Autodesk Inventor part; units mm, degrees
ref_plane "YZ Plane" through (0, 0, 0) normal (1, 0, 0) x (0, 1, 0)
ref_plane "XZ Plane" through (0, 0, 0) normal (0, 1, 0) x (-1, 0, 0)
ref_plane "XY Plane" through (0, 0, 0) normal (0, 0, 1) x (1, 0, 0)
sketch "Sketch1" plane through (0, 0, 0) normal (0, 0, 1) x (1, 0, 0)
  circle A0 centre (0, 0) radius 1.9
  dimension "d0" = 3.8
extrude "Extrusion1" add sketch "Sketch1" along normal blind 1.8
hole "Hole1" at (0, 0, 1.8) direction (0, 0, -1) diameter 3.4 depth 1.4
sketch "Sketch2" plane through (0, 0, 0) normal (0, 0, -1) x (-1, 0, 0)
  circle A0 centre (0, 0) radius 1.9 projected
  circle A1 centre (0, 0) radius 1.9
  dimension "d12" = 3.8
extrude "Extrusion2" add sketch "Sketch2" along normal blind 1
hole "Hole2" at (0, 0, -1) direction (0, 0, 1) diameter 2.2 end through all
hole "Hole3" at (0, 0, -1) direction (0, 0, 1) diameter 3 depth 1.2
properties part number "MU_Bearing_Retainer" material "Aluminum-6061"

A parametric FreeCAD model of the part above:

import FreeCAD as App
import Part
import Sketcher

doc = App.newDocument("Part")
body = doc.addObject("PartDesign::Body", "Body")

# Sketch on XY plane
sketch1 = body.newObject("Sketcher::SketchObject", "Sketch")
sketch1.AttachmentSupport = (doc.getObject("XY_Plane"), [""])
sketch1.MapMode = "FlatFace"
sketch1.addGeometry(Part.Circle(App.Vector(0, 0, 0), App.Vector(0, 0, 1), 1.9), False)
sketch1.addConstraint(Sketcher.Constraint("Coincident", 0, 3, -1, 1))
sketch1.addConstraint(Sketcher.Constraint("Diameter", 0, 3.8))
pad1 = body.newObject("PartDesign::Pad", "Pad")
pad1.Profile = sketch1
pad1.Length = 1.8

# Sketch on XY plane
sketch2 = body.newObject("Sketcher::SketchObject", "Sketch001")
sketch2.AttachmentSupport = (doc.getObject("XY_Plane"), [""])
sketch2.MapMode = "FlatFace"
sketch2.AttachmentOffset = App.Placement(App.Vector(0, 0, 1.8), App.Rotation())
sketch2.addGeometry(Part.Circle(App.Vector(0, 0, 0), App.Vector(0, 0, 1), 1.7), False)
sketch2.addConstraint(Sketcher.Constraint("Coincident", 0, 3, -1, 1))
sketch2.addConstraint(Sketcher.Constraint("Diameter", 0, 3.4))
doc.recompute()
hole = body.newObject("PartDesign::Hole", "Hole")
hole.Profile = sketch2
hole.ThreadType = "None"
hole.Diameter = 3.4
hole.DepthType = "Dimension"
hole.Depth = 1.4
hole.DrillPoint = "Flat"

# Sketch on XY plane
sketch3 = body.newObject("Sketcher::SketchObject", "Sketch002")
sketch3.AttachmentSupport = (doc.getObject("XY_Plane"), [""])
sketch3.MapMode = "FlatFace"
sketch3.addGeometry(Part.Circle(App.Vector(0, 0, 0), App.Vector(0, 0, 1), 1.9), False)
sketch3.addConstraint(Sketcher.Constraint("Coincident", 0, 3, -1, 1))
sketch3.addConstraint(Sketcher.Constraint("Diameter", 0, 3.8))
pad2 = body.newObject("PartDesign::Pad", "Pad001")
pad2.Profile = sketch3
pad2.Length = 1
pad2.Reversed = True

# Sketch on XY plane
sketch4 = body.newObject("Sketcher::SketchObject", "Sketch003")
sketch4.AttachmentSupport = (doc.getObject("XY_Plane"), [""])
sketch4.MapMode = "FlatFace"
sketch4.AttachmentOffset = App.Placement(App.Vector(0, 0, -1), App.Rotation())
sketch4.addGeometry(Part.Circle(App.Vector(0, 0, 0), App.Vector(0, 0, 1), 1.1), False)
sketch4.addConstraint(Sketcher.Constraint("Coincident", 0, 3, -1, 1))
sketch4.addConstraint(Sketcher.Constraint("Diameter", 0, 2.2))
doc.recompute()
hole2 = body.newObject("PartDesign::Hole", "Hole001")
hole2.Profile = sketch4
hole2.ThreadType = "None"
hole2.Diameter = 2.2
hole2.DepthType = "ThroughAll"
hole2.Reversed = True

# Sketch on XY plane
sketch5 = body.newObject("Sketcher::SketchObject", "Sketch004")
sketch5.AttachmentSupport = (doc.getObject("XY_Plane"), [""])
sketch5.MapMode = "FlatFace"
sketch5.AttachmentOffset = App.Placement(App.Vector(0, 0, -1), App.Rotation())
sketch5.addGeometry(Part.Circle(App.Vector(0, 0, 0), App.Vector(0, 0, 1), 1.5), False)
sketch5.addConstraint(Sketcher.Constraint("Coincident", 0, 3, -1, 1))
sketch5.addConstraint(Sketcher.Constraint("Diameter", 0, 3.0))
doc.recompute()
hole3 = body.newObject("PartDesign::Hole", "Hole002")
hole3.Profile = sketch5
hole3.ThreadType = "None"
hole3.Diameter = 3
hole3.DepthType = "Dimension"
hole3.Depth = 1.2
hole3.DrillPoint = "Flat"
hole3.Reversed = True

doc.recompute()
